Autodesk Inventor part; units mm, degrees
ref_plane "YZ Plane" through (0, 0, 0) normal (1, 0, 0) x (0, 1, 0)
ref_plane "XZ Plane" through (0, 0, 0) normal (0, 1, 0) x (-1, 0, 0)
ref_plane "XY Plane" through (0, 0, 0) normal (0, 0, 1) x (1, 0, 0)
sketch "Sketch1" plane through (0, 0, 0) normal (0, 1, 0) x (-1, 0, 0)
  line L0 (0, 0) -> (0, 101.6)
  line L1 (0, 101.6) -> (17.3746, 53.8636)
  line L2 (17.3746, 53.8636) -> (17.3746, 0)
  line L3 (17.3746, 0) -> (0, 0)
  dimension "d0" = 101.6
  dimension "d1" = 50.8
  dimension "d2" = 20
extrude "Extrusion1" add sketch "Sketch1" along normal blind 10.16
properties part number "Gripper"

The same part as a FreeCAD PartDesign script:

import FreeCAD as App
import Part
import Sketcher
from FreeCAD import Vector
Q = App.Units.Quantity


def add_polygon(sketch, points):
    """Adds a closed chain of lines whose ends are joined by coincident constraints."""
    first, n = sketch.GeometryCount, len(points)
    for a, b in zip(points, points[1:] + points[:1]):
        sketch.addGeometry(Part.LineSegment(App.Vector(*a, 0), App.Vector(*b, 0)), False)
    for i in range(n):
        sketch.addConstraint(Sketcher.Constraint("Coincident", first + i, 2, first + (i + 1) % n, 1))

doc = App.newDocument("Part")
params = doc.addObject("Spreadsheet::Sheet", "Params")
for row, (alias, value) in enumerate([
    ("sketch1_height", "4 in"),
    ("sketch1_length", "2 in"),
    ("pad1_length", "0.4 in"),
], start=1):
    params.set(f"A{row}", alias)
    params.set(f"B{row}", "=" + value)
    params.setAlias(f"B{row}", alias)

body = doc.addObject("PartDesign::Body", "Body")

# Sketch on XZ plane
sketch1 = doc.addObject("Sketcher::SketchObject", "Sketch")
body.addObject(sketch1)
sketch1.AttachmentSupport = (doc.XZ_Plane, [""])
sketch1.MapMode = "FlatFace"
add_polygon(sketch1, [(0, 102), (0, 0), (-17, 0), (-17, 54)])  # lines 0-3
sketch1.addConstraint([
    Sketcher.Constraint("Vertical", 0),
    Sketcher.Constraint("Horizontal", 1),
    Sketcher.Constraint("Vertical", 2),
    Sketcher.Constraint("Coincident", 0, 2, -1, 1),
    Sketcher.Constraint("DistanceY", 0, 2, 0, 1, Q("4 in")),
    Sketcher.Constraint("Distance", 3, Q("2 in")),
    Sketcher.Constraint("Angle", 3, Q("70 deg")),
])
sketch1.setExpression("Constraints[8]", "Params.sketch1_height")
sketch1.setExpression("Constraints[9]", "Params.sketch1_length")
pad1 = doc.addObject("PartDesign::Pad", "Pad")
body.addObject(pad1)
pad1.Profile = sketch1
pad1.setExpression("Length", "Params.pad1_length")
pad1.Reversed = True

doc.recompute()
